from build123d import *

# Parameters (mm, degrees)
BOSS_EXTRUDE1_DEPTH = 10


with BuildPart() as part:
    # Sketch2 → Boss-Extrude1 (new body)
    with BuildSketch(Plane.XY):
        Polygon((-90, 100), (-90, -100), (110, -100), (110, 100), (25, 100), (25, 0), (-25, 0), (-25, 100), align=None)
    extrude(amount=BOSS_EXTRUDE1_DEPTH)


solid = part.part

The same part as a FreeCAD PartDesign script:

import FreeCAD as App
import Part
import Sketcher
from FreeCAD import Vector


def add_polygon(sketch, points):
    """Adds a closed chain of lines whose ends are joined by coincident constraints."""
    first, n = sketch.GeometryCount, len(points)
    for a, b in zip(points, points[1:] + points[:1]):
        sketch.addGeometry(Part.LineSegment(App.Vector(*a, 0), App.Vector(*b, 0)), False)
    for i in range(n):
        sketch.addConstraint(Sketcher.Constraint("Coincident", first + i, 2, first + (i + 1) % n, 1))

doc = App.newDocument("Part")
body = doc.addObject("PartDesign::Body", "Body")

# Sketch on XY plane
sketch1 = body.newObject("Sketcher::SketchObject", "Sketch")
sketch1.AttachmentSupport = (doc.getObject("XY_Plane"), [""])
sketch1.MapMode = "FlatFace"
add_polygon(sketch1, [(-90, 100), (-90, -100), (110, -100), (110, 100), (25, 100), (25, 0), (-25, 0), (-25, 100)])  # lines 0-7
sketch1.addConstraint([
    Sketcher.Constraint("Vertical", 0),
    Sketcher.Constraint("Horizontal", 1),
    Sketcher.Constraint("Vertical", 2),
    Sketcher.Constraint("Horizontal", 3),
    Sketcher.Constraint("Vertical", 4),
    Sketcher.Constraint("Horizontal", 5),
    Sketcher.Constraint("Vertical", 6),
    Sketcher.Constraint("Horizontal", 7),
    Sketcher.Constraint("Symmetric", 4, 2, 5, 2, -1, 1),
    Sketcher.Constraint("Horizontal", 3, 2, 6, 2),
    Sketcher.Constraint("Equal", 1, 0),
    Sketcher.Constraint("DistanceX", 1, 1, 1, 2, 200.0),
    Sketcher.Constraint("DistanceX", 3, 2, 3, 1, 85.0),
    Sketcher.Constraint("DistanceX", 5, 2, 5, 1, 50.0),
    Sketcher.Constraint("DistanceY", 4, 2, 4, 1, 100.0),
])
pad1 = body.newObject("PartDesign::Pad", "Pad")
pad1.Profile = sketch1
pad1.Length = 10

doc.recompute()
